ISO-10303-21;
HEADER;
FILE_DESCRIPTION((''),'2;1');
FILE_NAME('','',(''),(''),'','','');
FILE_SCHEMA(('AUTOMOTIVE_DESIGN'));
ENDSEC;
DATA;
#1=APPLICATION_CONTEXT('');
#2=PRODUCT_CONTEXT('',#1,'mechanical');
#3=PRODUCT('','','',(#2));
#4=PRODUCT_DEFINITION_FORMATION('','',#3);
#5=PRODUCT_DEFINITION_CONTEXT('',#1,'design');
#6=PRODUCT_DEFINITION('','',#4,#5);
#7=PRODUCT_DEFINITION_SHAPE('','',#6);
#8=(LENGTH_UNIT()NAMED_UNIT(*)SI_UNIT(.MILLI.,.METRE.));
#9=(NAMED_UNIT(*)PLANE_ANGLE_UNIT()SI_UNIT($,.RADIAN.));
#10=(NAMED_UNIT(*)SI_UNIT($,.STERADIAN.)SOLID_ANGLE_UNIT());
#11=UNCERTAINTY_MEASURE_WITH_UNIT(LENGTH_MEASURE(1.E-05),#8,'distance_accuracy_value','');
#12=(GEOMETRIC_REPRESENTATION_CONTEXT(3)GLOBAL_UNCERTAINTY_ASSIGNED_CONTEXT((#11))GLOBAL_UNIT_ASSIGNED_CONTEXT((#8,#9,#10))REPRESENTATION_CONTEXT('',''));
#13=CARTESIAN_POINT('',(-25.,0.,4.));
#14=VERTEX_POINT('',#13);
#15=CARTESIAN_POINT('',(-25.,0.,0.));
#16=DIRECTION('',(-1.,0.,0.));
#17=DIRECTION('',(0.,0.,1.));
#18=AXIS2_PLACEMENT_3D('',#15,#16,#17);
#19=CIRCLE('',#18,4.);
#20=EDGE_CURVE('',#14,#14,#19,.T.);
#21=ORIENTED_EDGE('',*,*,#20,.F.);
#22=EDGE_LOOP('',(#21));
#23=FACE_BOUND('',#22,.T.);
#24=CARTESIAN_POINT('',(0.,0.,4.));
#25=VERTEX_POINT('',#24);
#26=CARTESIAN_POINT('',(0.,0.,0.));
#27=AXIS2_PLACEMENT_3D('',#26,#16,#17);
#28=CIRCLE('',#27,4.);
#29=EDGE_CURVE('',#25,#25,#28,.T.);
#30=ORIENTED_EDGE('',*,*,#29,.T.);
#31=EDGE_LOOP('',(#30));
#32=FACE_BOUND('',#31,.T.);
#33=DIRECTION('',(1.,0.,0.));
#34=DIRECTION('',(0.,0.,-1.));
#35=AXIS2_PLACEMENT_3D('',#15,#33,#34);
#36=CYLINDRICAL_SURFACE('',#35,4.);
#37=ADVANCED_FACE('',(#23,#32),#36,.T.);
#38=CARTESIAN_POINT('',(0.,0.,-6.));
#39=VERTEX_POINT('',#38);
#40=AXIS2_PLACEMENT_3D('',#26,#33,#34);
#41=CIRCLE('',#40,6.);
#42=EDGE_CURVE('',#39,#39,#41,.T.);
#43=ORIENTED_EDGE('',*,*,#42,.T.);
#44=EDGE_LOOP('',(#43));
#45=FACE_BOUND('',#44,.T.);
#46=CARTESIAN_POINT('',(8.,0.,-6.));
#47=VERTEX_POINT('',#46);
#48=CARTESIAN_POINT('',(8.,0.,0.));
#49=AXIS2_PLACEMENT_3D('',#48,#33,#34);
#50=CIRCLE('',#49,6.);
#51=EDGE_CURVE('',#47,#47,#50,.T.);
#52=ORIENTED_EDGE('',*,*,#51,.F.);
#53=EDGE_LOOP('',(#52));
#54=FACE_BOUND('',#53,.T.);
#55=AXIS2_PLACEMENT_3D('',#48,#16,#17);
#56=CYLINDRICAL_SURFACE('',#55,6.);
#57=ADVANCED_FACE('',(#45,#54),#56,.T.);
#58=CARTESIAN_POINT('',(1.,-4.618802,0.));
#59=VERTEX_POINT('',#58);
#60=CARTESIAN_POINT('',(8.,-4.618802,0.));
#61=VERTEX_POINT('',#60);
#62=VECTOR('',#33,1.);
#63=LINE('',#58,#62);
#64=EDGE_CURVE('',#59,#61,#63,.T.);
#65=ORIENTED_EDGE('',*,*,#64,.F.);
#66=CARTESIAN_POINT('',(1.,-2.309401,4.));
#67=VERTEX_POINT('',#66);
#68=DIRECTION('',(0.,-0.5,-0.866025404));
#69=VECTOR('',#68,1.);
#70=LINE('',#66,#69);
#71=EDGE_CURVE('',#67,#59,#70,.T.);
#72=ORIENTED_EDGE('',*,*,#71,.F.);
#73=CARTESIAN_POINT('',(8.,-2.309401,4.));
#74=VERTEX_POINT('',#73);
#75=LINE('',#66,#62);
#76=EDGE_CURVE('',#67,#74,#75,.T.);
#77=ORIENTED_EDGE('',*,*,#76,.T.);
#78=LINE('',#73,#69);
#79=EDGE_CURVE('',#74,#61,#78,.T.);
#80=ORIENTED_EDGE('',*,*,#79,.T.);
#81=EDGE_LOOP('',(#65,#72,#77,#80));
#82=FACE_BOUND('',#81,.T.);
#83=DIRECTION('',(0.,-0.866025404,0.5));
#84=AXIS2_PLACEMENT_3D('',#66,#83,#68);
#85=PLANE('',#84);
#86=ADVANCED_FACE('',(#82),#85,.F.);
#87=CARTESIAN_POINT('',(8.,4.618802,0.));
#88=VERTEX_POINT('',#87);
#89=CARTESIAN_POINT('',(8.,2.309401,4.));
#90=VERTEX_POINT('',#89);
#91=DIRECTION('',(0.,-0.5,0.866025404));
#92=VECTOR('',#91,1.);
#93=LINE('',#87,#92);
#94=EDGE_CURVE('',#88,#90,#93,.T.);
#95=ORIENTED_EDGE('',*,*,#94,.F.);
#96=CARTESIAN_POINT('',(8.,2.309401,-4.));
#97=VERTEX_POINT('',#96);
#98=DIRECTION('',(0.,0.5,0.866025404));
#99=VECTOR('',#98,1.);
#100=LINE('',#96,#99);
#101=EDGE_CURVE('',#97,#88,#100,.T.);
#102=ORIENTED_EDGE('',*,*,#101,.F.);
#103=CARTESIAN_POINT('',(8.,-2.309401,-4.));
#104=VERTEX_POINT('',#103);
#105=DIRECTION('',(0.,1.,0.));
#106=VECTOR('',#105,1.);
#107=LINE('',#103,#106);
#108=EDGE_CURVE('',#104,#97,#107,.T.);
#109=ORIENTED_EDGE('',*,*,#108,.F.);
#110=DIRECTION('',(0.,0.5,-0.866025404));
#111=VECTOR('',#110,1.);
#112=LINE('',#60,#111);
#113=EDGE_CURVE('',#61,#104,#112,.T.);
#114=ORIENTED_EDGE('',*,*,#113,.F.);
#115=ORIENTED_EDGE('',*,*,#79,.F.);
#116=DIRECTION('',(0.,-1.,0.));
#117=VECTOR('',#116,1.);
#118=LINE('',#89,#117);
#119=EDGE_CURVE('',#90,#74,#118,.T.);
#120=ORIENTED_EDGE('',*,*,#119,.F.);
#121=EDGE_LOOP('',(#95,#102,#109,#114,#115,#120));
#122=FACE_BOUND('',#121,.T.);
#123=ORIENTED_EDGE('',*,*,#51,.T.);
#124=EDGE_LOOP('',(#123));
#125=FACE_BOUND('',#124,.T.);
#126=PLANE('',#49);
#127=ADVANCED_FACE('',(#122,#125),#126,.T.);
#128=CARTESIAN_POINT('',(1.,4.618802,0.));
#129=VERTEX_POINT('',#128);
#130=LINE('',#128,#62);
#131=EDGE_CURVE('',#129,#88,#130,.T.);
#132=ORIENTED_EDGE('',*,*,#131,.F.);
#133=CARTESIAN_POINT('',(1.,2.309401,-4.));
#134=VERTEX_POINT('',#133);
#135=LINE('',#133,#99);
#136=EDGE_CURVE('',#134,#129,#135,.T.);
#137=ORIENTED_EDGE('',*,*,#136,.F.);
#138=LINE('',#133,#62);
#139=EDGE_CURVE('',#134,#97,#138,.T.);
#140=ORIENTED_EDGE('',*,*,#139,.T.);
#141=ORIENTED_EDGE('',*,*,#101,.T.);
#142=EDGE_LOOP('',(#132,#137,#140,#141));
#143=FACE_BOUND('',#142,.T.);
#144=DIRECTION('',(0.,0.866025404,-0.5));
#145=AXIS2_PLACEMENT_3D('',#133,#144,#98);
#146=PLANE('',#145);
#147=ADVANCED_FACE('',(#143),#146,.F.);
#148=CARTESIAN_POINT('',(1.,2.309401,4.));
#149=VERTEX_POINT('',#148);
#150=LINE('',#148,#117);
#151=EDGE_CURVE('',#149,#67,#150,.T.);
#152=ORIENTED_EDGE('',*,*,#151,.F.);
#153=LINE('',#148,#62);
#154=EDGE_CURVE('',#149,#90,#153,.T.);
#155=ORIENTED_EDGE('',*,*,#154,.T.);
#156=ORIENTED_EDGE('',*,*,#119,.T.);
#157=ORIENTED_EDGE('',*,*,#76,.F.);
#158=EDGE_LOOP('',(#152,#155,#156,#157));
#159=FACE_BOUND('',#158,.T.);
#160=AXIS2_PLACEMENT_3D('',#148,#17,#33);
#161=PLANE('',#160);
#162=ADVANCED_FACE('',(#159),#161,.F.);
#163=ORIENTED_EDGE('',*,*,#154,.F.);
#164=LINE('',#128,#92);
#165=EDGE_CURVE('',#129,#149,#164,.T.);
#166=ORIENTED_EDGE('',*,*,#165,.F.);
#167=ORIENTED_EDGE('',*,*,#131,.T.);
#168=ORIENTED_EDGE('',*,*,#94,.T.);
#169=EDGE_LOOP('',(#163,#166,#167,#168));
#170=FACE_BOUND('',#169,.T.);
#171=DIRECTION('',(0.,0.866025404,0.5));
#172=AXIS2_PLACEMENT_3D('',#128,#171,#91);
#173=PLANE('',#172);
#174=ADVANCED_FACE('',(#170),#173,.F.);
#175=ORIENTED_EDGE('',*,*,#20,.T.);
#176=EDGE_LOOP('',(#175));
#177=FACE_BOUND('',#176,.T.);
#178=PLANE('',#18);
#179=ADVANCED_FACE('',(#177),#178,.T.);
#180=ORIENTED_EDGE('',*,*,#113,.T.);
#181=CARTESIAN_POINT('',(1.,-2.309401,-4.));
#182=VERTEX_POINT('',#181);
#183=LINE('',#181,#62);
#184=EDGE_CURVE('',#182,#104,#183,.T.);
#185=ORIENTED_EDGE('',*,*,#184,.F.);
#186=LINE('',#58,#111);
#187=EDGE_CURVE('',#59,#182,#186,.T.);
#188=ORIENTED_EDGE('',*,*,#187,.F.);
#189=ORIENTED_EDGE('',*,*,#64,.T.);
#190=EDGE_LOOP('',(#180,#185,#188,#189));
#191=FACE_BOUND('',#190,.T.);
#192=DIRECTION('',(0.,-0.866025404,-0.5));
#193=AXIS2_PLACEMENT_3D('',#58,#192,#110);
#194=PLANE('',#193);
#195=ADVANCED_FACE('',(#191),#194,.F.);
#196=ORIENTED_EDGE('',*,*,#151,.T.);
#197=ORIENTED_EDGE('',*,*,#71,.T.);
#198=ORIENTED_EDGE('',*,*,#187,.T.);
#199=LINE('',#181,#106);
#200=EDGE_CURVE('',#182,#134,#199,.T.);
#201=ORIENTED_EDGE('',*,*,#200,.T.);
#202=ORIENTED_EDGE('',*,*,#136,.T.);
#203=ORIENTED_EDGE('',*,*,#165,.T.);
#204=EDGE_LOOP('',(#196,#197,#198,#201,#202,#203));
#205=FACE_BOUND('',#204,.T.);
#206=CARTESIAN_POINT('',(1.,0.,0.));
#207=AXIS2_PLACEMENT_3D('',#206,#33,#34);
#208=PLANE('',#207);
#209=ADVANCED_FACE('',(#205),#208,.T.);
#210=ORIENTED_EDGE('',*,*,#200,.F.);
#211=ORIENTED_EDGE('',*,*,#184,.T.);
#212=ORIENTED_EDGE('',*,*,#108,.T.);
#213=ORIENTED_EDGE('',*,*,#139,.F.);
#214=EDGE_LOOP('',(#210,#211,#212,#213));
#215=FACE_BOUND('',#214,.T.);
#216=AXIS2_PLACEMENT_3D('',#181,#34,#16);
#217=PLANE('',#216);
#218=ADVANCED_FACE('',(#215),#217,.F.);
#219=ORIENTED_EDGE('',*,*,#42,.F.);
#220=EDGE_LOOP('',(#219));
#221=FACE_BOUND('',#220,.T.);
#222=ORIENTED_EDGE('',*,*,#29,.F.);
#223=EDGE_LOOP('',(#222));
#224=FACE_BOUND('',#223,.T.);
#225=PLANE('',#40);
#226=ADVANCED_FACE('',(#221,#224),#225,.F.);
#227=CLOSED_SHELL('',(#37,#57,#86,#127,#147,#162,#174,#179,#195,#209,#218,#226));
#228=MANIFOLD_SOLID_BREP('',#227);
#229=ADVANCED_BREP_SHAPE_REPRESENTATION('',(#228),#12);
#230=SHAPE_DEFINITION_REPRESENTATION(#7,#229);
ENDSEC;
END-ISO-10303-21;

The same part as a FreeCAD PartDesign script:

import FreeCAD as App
import Part
import Sketcher

V = App.Vector
Q = App.Units.Quantity


def add_polygon(sketch, points):
    """Adds a closed chain of lines whose ends are joined by coincident constraints."""
    first, n = sketch.GeometryCount, len(points)
    for a, b in zip(points, points[1:] + points[:1]):
        sketch.addGeometry(Part.LineSegment(App.Vector(*a, 0), App.Vector(*b, 0)), False)
    for i in range(n):
        sketch.addConstraint(Sketcher.Constraint("Coincident", first + i, 2, first + (i + 1) % n, 1))

doc = App.newDocument("Part")
body = doc.addObject("PartDesign::Body", "Body")

# Sketch on YZ plane
sketch1 = doc.addObject("Sketcher::SketchObject", "Sketch")
body.addObject(sketch1)
sketch1.AttachmentSupport = (doc.YZ_Plane, [""])
sketch1.MapMode = "FlatFace"
sketch1.addGeometry(Part.Circle(V(0, 0, 0), V(0, 0, 1), 6), False)
sketch1.addConstraint(Sketcher.Constraint("Coincident", 0, 3, -1, 1))
sketch1.addConstraint(Sketcher.Constraint("Diameter", 0, 12.0))
pad1 = doc.addObject("PartDesign::Pad", "Pad")
body.addObject(pad1)
pad1.Profile = sketch1
pad1.Length = 8

# Sketch on YZ plane
sketch2 = doc.addObject("Sketcher::SketchObject", "Sketch001")
body.addObject(sketch2)
sketch2.AttachmentSupport = (doc.YZ_Plane, [""])
sketch2.MapMode = "FlatFace"
sketch2.addGeometry(Part.Circle(V(0, 0, 0), V(0, 0, 1), 4), False)
sketch2.addConstraint(Sketcher.Constraint("Coincident", 0, 3, -1, 1))
sketch2.addConstraint(Sketcher.Constraint("Diameter", 0, 8.0))
pad2 = doc.addObject("PartDesign::Pad", "Pad001")
body.addObject(pad2)
pad2.Profile = sketch2
pad2.Length = 25
pad2.Reversed = True

# Sketch on YZ plane
sketch3 = doc.addObject("Sketcher::SketchObject", "Sketch002")
body.addObject(sketch3)
sketch3.AttachmentSupport = (doc.YZ_Plane, [""])
sketch3.MapMode = "FlatFace"
sketch3.AttachmentOffset = App.Placement(V(0, 0, 8), App.Rotation())
add_polygon(sketch3, [(2.309401, -4), (4.618802, 0), (2.309401, 4), (-2.309401, 4), (-4.618802, 0), (-2.309401, -4)])  # lines 0-5
sketch3.addConstraint(Sketcher.Constraint("Horizontal", 2))
sketch3.addConstraint(Sketcher.Constraint("Horizontal", 5))
sketch3.addConstraint(Sketcher.Constraint("Symmetric", 0, 2, 3, 2, -1, 1))
sketch3.addConstraint(Sketcher.Constraint("Symmetric", 1, 2, 4, 2, -1, 1))
sketch3.addConstraint(Sketcher.Constraint("PointOnObject", 0, 2, -1))
sketch3.addConstraint(Sketcher.Constraint("Parallel", 0, 3))
sketch3.addConstraint(Sketcher.Constraint("Vertical", 2, 2, 4, 2))
sketch3.addConstraint(Sketcher.Constraint("Angle", 0, Q("60 deg")))
sketch3.addConstraint(Sketcher.Constraint("DistanceY", -1, 1, 1, 2, 4.0))
sketch3.addConstraint(Sketcher.Constraint("DistanceX", -1, 1, 1, 2, 2.309401))
pocket1 = doc.addObject("PartDesign::Pocket", "Pocket")
body.addObject(pocket1)
pocket1.Profile = sketch3
pocket1.Length = 7

doc.recompute()
